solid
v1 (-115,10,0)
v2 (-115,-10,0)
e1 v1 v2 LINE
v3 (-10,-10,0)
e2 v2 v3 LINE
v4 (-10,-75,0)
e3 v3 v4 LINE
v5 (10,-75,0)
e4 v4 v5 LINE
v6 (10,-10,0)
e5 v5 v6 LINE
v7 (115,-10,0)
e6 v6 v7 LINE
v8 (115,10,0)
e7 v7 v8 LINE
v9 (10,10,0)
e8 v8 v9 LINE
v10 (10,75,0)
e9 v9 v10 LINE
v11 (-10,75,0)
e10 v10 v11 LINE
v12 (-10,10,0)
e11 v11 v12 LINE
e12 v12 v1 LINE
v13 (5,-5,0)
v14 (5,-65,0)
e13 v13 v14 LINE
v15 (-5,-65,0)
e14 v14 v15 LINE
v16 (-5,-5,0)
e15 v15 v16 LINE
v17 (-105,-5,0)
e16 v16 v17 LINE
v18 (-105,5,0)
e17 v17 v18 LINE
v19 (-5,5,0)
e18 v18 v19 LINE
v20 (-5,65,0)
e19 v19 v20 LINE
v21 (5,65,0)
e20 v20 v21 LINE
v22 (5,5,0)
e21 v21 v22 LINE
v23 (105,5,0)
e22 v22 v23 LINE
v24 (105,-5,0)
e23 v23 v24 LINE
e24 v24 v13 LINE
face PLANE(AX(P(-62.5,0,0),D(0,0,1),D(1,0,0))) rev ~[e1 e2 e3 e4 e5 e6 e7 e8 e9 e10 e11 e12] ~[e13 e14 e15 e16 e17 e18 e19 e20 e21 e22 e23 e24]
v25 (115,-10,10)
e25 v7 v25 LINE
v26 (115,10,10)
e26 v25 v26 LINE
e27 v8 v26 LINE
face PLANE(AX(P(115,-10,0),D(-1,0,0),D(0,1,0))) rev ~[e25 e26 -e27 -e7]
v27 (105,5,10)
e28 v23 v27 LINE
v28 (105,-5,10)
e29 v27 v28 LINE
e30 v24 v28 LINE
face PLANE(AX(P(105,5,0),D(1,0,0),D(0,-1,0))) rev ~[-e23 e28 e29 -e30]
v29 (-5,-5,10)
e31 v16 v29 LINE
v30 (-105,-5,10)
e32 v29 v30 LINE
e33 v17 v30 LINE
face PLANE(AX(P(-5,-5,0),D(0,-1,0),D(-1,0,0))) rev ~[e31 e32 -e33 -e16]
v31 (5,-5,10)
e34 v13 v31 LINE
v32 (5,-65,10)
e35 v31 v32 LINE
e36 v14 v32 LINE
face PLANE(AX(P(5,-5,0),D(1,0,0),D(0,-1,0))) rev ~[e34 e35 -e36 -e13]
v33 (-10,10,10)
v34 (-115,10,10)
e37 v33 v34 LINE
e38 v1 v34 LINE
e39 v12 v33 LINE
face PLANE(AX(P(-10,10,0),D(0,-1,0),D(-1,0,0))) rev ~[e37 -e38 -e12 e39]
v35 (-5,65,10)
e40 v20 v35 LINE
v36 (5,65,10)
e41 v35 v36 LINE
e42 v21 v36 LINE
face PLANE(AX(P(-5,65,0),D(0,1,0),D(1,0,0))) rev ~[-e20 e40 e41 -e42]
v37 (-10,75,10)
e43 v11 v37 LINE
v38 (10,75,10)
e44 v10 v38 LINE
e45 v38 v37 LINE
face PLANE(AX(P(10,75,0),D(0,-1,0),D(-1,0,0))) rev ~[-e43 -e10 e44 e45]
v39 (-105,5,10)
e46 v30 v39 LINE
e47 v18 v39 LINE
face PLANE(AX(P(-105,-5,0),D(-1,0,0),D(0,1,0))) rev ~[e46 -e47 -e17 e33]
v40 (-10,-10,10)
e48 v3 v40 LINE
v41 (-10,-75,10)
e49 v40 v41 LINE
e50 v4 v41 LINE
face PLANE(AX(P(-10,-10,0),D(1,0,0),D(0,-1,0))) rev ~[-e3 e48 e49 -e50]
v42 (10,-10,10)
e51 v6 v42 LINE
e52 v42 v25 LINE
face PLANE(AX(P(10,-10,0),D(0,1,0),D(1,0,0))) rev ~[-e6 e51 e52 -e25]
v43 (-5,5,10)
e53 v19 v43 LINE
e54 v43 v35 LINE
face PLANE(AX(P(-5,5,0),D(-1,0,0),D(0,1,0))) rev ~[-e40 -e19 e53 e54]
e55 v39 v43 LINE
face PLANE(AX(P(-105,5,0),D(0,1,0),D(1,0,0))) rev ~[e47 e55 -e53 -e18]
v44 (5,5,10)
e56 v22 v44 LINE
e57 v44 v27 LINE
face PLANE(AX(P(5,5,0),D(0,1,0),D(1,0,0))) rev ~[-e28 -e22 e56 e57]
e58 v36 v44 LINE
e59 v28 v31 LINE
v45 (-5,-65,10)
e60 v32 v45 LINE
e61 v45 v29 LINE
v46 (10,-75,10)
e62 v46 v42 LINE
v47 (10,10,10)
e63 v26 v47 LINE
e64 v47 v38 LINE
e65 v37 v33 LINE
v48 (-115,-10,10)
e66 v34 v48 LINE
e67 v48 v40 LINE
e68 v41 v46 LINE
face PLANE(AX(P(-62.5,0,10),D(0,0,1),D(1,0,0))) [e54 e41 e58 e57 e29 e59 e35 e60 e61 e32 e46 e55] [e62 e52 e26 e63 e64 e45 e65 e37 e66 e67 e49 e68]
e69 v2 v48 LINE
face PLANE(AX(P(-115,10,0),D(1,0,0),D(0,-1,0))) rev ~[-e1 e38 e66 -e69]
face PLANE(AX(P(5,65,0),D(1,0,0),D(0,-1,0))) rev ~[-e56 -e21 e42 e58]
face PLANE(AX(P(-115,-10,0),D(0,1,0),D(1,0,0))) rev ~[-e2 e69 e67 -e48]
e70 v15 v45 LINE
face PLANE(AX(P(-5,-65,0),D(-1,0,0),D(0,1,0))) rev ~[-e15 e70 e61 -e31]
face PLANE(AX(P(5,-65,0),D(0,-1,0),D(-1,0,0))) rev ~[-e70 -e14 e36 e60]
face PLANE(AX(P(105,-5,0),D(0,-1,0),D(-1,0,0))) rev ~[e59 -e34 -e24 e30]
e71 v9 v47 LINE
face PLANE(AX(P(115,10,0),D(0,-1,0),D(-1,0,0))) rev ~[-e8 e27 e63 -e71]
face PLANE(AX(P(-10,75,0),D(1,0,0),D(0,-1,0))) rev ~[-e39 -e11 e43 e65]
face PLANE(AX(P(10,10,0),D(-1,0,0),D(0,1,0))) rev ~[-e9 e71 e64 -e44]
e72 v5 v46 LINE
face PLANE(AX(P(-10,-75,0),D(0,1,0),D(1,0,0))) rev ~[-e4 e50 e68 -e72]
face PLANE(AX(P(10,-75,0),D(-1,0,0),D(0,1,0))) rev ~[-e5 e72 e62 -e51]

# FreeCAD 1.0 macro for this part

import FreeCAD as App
import Part
import Sketcher

V = App.Vector
Q = App.Units.Quantity


def add_polygon(sketch, points):
    """Adds a closed chain of lines whose ends are joined by coincident constraints."""
    first, n = sketch.GeometryCount, len(points)
    for a, b in zip(points, points[1:] + points[:1]):
        sketch.addGeometry(Part.LineSegment(App.Vector(*a, 0), App.Vector(*b, 0)), False)
    for i in range(n):
        sketch.addConstraint(Sketcher.Constraint("Coincident", first + i, 2, first + (i + 1) % n, 1))

doc = App.newDocument("Part")
params = doc.addObject("Spreadsheet::Sheet", "Params")
for row, (alias, value) in enumerate([
    ("sketch1_width", "105 mm"),
    ("sketch1_width2", "20 mm"),
    ("sketch1_width3", "100 mm"),
    ("sketch1_width4", "10 mm"),
    ("sketch1_height", "65 mm"),
    ("pad1_length", "10 mm"),
], start=1):
    params.set(f"A{row}", alias)
    params.set(f"B{row}", "=" + value)
    params.setAlias(f"B{row}", alias)

body = doc.addObject("PartDesign::Body", "Body")

sketch1 = body.newObject("Sketcher::SketchObject", "Sketch")
sketch1.AttachmentSupport = (doc.getObject("XY_Plane"), [""])
sketch1.MapMode = "FlatFace"
add_polygon(sketch1, [(10, -75), (10, -10), (115, -10), (115, 10), (10, 10), (10, 75), (-10, 75), (-10, 10), (-115, 10), (-115, -10), (-10, -10), (-10, -75)])
add_polygon(sketch1, [(105, -5), (5, -5), (5, -65), (-5, -65), (-5, -5), (-105, -5), (-105, 5), (-5, 5), (-5, 65), (5, 65), (5, 5), (105, 5)])
sketch1.addConstraint([
    Sketcher.Constraint("Vertical", 0),
    Sketcher.Constraint("Horizontal", 1),
    Sketcher.Constraint("Vertical", 2),
    Sketcher.Constraint("Horizontal", 3),
    Sketcher.Constraint("Vertical", 4),
    Sketcher.Constraint("Horizontal", 5),
    Sketcher.Constraint("Vertical", 6),
    Sketcher.Constraint("Horizontal", 7),
    Sketcher.Constraint("Vertical", 8),
    Sketcher.Constraint("Horizontal", 9),
    Sketcher.Constraint("Vertical", 10),
    Sketcher.Constraint("Horizontal", 11),
    Sketcher.Constraint("Horizontal", 12),
    Sketcher.Constraint("Vertical", 13),
    Sketcher.Constraint("Horizontal", 14),
    Sketcher.Constraint("Vertical", 15),
    Sketcher.Constraint("Horizontal", 16),
    Sketcher.Constraint("Vertical", 17),
    Sketcher.Constraint("Horizontal", 18),
    Sketcher.Constraint("Vertical", 19),
    Sketcher.Constraint("Horizontal", 20),
    Sketcher.Constraint("Vertical", 21),
    Sketcher.Constraint("Horizontal", 22),
    Sketcher.Constraint("Vertical", 23),
    Sketcher.Constraint("Symmetric", 0, 2, 6, 2, -1, 1),
    Sketcher.Constraint("Symmetric", 2, 2, 8, 2, -1, 1),
    Sketcher.Constraint("Symmetric", 4, 2, 10, 2, -1, 1),
    Sketcher.Constraint("Symmetric", 12, 2, 18, 2, -1, 1),
    Sketcher.Constraint("Symmetric", 14, 2, 20, 2, -1, 1),
    Sketcher.Constraint("Symmetric", 16, 2, 22, 2, -1, 1),
    Sketcher.Constraint("Symmetric", 3, 2, 6, 2, -2),
    Sketcher.Constraint("Symmetric", 12, 2, 15, 2, -2),
    Sketcher.Constraint("Equal", 11, 2),
    Sketcher.Constraint("Equal", 20, 17),
    Sketcher.Constraint("DistanceX", 1, 1, 1, 2, Q("105 mm")),
    Sketcher.Constraint("DistanceX", 5, 2, 5, 1, Q("20 mm")),
    Sketcher.Constraint("DistanceX", 12, 2, 12, 1, Q("100 mm")),
    Sketcher.Constraint("DistanceX", 14, 2, 14, 1, Q("10 mm")),
    Sketcher.Constraint("DistanceY", 0, 1, 0, 2, Q("65 mm")),
    Sketcher.Constraint("DistanceY", 13, 2, 13, 1, Q("60 mm")),
])
sketch1.setExpression("Constraints[58]", "Params.sketch1_width")
sketch1.setExpression("Constraints[59]", "Params.sketch1_width2")
sketch1.setExpression("Constraints[60]", "Params.sketch1_width3")
sketch1.setExpression("Constraints[61]", "Params.sketch1_width4")
sketch1.setExpression("Constraints[62]", "Params.sketch1_height")
pad1 = body.newObject("PartDesign::Pad", "Pad")
pad1.Profile = sketch1
pad1.setExpression("Length", "Params.pad1_length")

doc.recompute()
